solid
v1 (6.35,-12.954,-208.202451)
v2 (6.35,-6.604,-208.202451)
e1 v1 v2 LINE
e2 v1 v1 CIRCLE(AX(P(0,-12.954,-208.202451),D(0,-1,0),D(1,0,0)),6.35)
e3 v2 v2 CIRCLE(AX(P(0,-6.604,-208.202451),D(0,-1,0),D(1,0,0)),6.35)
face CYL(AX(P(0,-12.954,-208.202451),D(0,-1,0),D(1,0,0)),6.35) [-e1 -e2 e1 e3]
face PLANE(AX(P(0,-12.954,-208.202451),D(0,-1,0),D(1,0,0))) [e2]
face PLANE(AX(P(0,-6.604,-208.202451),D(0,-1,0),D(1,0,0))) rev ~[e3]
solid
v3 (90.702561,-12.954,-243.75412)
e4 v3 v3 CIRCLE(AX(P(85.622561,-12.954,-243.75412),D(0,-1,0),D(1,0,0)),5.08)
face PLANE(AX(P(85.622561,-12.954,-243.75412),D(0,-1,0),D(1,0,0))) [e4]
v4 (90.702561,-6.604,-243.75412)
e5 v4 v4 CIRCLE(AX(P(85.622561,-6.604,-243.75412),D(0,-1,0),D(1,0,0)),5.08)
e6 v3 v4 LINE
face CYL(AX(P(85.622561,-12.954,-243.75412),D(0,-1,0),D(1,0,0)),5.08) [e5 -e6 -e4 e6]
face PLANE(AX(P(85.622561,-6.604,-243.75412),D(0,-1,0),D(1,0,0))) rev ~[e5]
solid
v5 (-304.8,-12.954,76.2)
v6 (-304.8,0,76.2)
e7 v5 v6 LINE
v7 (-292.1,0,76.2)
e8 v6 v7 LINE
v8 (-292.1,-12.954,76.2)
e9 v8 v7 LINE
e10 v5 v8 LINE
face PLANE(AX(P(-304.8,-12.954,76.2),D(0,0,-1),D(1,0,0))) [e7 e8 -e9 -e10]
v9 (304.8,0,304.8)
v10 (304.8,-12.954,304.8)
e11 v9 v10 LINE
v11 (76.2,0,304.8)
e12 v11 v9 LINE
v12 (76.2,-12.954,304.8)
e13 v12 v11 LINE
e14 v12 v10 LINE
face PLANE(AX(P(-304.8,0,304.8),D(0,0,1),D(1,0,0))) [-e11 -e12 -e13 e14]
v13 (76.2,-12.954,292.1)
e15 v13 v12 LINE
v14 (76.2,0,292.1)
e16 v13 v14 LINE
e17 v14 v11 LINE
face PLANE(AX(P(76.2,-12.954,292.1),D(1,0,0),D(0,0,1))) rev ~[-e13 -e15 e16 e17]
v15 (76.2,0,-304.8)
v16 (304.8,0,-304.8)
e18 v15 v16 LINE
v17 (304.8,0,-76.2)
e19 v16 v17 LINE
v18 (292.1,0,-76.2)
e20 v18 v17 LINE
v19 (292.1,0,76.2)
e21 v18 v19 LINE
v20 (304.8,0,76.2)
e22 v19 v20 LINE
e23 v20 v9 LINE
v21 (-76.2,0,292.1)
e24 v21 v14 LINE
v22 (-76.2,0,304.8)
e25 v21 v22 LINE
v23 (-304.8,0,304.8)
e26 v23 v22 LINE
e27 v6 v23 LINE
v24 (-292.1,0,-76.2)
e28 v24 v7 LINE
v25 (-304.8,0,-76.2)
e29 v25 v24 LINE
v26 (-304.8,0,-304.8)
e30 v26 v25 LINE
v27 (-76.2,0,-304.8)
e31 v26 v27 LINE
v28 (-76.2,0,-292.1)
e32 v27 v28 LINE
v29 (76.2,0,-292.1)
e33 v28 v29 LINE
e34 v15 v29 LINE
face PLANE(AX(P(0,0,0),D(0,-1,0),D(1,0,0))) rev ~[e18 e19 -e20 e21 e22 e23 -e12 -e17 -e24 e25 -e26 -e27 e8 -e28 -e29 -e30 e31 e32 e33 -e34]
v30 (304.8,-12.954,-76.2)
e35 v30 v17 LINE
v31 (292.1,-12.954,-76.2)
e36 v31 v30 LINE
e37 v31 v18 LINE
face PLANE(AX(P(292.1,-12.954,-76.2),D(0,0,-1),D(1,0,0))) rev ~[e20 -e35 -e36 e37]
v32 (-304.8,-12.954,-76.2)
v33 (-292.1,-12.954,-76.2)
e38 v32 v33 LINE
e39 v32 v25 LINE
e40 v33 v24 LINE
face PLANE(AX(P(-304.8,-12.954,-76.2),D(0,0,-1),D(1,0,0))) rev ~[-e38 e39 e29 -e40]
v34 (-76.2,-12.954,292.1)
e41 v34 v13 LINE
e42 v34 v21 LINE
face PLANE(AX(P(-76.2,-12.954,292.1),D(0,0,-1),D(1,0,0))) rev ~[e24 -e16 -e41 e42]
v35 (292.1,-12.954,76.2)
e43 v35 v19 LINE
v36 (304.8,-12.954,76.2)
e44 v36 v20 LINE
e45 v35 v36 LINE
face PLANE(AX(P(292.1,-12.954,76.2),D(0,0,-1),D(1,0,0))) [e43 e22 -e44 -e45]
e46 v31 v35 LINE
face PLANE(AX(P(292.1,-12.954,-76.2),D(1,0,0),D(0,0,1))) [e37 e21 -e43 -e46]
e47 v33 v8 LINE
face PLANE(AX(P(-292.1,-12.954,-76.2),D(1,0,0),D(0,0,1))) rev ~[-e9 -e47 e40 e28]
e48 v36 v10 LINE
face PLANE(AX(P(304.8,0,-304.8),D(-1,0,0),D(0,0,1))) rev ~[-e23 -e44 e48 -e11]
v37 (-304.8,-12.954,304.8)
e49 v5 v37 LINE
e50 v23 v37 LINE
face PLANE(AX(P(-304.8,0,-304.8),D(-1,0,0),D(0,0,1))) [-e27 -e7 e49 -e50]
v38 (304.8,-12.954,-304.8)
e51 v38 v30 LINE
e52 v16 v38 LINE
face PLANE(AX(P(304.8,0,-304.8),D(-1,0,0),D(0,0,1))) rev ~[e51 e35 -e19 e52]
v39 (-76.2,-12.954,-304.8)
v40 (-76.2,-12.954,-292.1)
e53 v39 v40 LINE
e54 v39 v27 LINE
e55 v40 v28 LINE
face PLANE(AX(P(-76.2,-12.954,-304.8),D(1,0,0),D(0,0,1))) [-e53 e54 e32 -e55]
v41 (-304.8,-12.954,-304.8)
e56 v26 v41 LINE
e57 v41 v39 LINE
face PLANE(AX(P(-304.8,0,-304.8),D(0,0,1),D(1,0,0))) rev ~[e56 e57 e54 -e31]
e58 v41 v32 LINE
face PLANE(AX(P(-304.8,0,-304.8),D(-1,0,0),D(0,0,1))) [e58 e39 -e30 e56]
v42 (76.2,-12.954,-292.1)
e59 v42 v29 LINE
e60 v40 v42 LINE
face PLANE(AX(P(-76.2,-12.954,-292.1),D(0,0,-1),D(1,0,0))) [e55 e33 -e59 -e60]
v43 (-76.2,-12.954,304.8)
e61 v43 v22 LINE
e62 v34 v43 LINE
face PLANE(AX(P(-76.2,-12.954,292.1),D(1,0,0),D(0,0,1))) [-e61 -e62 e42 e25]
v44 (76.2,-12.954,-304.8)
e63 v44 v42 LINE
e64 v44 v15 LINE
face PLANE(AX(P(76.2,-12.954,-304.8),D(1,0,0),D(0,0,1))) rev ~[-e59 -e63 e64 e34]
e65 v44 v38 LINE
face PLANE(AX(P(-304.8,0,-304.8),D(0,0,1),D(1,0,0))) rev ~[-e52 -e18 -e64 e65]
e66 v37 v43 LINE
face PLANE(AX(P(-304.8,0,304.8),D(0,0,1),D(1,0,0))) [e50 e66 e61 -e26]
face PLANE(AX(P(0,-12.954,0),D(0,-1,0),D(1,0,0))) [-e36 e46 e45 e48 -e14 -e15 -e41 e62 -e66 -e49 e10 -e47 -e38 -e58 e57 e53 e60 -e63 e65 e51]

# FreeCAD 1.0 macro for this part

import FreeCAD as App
import Part
import Sketcher

V = App.Vector
Q = App.Units.Quantity

doc = App.newDocument("Part")
body = doc.addObject("PartDesign::Body", "Body")

sketch1 = doc.addObject("Sketcher::SketchObject", "Sketch")
body.addObject(sketch1)
sketch1.AttachmentSupport = (doc.XZ_Plane, [""])
sketch1.MapMode = "FlatFace"
sketch1.addGeometry([
    Part.LineSegment(V(-305, 305, 0), V(-305, -305, 0)),
    Part.LineSegment(V(-305, -305, 0), V(305, -305, 0)),
    Part.LineSegment(V(305, -305, 0), V(305, 305, 0)),
    Part.LineSegment(V(305, 305, 0), V(-305, 305, 0)),
], False)
sketch1.addConstraint([
    Sketcher.Constraint("Coincident", 0, 2, 1, 1),
    Sketcher.Constraint("Coincident", 1, 2, 2, 1),
    Sketcher.Constraint("Coincident", 2, 2, 3, 1),
    Sketcher.Constraint("Coincident", 3, 2, 0, 1),
    Sketcher.Constraint("Vertical", 0),
    Sketcher.Constraint("Horizontal", 1),
    Sketcher.Constraint("Vertical", 2),
    Sketcher.Constraint("Horizontal", 3),
    Sketcher.Constraint("Symmetric", 0, 2, 2, 2, -1, 1),
    Sketcher.Constraint("Equal", 3, 0),
    Sketcher.Constraint("DistanceX", 1, 1, 1, 2, Q("24 in")),
])
pad1 = doc.addObject("PartDesign::Pad", "Pad")
body.addObject(pad1)
pad1.Profile = sketch1
pad1.Length = Q("0.51 in")

sketch2 = doc.addObject("Sketcher::SketchObject", "Sketch001")
body.addObject(sketch2)
sketch2.AttachmentSupport = (doc.XZ_Plane, [""])
sketch2.MapMode = "FlatFace"
sketch2.AttachmentOffset = App.Placement(V(0, 0, 0.51 * 25.4), App.Rotation())
sketch2.addGeometry([
    Part.LineSegment(V(-76, -292, 0), V(-76, -305, 0)),
    Part.LineSegment(V(-76, -305, 0), V(76, -305, 0)),
    Part.LineSegment(V(76, -305, 0), V(76, -292, 0)),
    Part.LineSegment(V(76, -292, 0), V(-76, -292, 0)),
    Part.LineSegment(V(292, 76, 0), V(292, -76, 0)),
    Part.LineSegment(V(292, -76, 0), V(305, -76, 0)),
    Part.LineSegment(V(305, -76, 0), V(305, 76, 0)),
    Part.LineSegment(V(305, 76, 0), V(292, 76, 0)),
    Part.LineSegment(V(-76, 305, 0), V(-76, 292, 0)),
    Part.LineSegment(V(-76, 292, 0), V(76, 292, 0)),
    Part.LineSegment(V(76, 292, 0), V(76, 305, 0)),
    Part.LineSegment(V(76, 305, 0), V(-76, 305, 0)),
    Part.LineSegment(V(-305, 76, 0), V(-305, -76, 0)),
    Part.LineSegment(V(-305, -76, 0), V(-292, -76, 0)),
    Part.LineSegment(V(-292, -76, 0), V(-292, 76, 0)),
    Part.LineSegment(V(-292, 76, 0), V(-305, 76, 0)),
], False)
sketch2.addConstraint([
    Sketcher.Constraint("Coincident", 0, 2, 1, 1),
    Sketcher.Constraint("Coincident", 1, 2, 2, 1),
    Sketcher.Constraint("Coincident", 2, 2, 3, 1),
    Sketcher.Constraint("Coincident", 3, 2, 0, 1),
    Sketcher.Constraint("Coincident", 4, 2, 5, 1),
    Sketcher.Constraint("Coincident", 5, 2, 6, 1),
    Sketcher.Constraint("Coincident", 6, 2, 7, 1),
    Sketcher.Constraint("Coincident", 7, 2, 4, 1),
    Sketcher.Constraint("Coincident", 8, 2, 9, 1),
    Sketcher.Constraint("Coincident", 9, 2, 10, 1),
    Sketcher.Constraint("Coincident", 10, 2, 11, 1),
    Sketcher.Constraint("Coincident", 11, 2, 8, 1),
    Sketcher.Constraint("Coincident", 12, 2, 13, 1),
    Sketcher.Constraint("Coincident", 13, 2, 14, 1),
    Sketcher.Constraint("Coincident", 14, 2, 15, 1),
    Sketcher.Constraint("Coincident", 15, 2, 12, 1),
    Sketcher.Constraint("Vertical", 0),
    Sketcher.Constraint("Horizontal", 1),
    Sketcher.Constraint("Vertical", 2),
    Sketcher.Constraint("Horizontal", 3),
    Sketcher.Constraint("Vertical", 4),
    Sketcher.Constraint("Horizontal", 5),
    Sketcher.Constraint("Vertical", 6),
    Sketcher.Constraint("Horizontal", 7),
    Sketcher.Constraint("Vertical", 8),
    Sketcher.Constraint("Horizontal", 9),
    Sketcher.Constraint("Vertical", 10),
    Sketcher.Constraint("Horizontal", 11),
    Sketcher.Constraint("Vertical", 12),
    Sketcher.Constraint("Horizontal", 13),
    Sketcher.Constraint("Vertical", 14),
    Sketcher.Constraint("Horizontal", 15),
    Sketcher.Constraint("Symmetric", 2, 2, 8, 2, -1, 1),
    Sketcher.Constraint("Symmetric", 0, 2, 10, 2, -1, 1),
    Sketcher.Constraint("Symmetric", 6, 2, 12, 2, -1, 1),
    Sketcher.Constraint("Symmetric", 4, 2, 14, 2, -1, 1),
    Sketcher.Constraint("Horizontal", 5, 2, 12, 2),
    Sketcher.Constraint("Vertical", 3, 2, 8, 2),
    Sketcher.Constraint("Equal", 15, 0),
    Sketcher.Constraint("Equal", 11, 4),
    Sketcher.Constraint("DistanceX", 1, 1, 1, 2, Q("6 in")),
    Sketcher.Constraint("DistanceX", 5, 1, 5, 2, Q("0.5 in")),
    Sketcher.Constraint("DistanceY", 0, 2, -1, 1, Q("12 in")),
    Sketcher.Constraint("DistanceX", -1, 1, 5, 2, Q("12 in")),
])
pocket1 = doc.addObject("PartDesign::Pocket", "Pocket")
body.addObject(pocket1)
pocket1.Profile = sketch2
pocket1.Length = Q("0.51 in")
body2 = doc.addObject("PartDesign::Body", "Body001")
body2.AllowCompound = True

sketch3 = doc.addObject("Sketcher::SketchObject", "Sketch002")
body2.addObject(sketch3)
sketch3.AttachmentSupport = (doc.getObject("XZ_Plane001"), [""])
sketch3.MapMode = "FlatFace"
sketch3.AttachmentOffset = App.Placement(V(0, 0, 0.51 * 25.4), App.Rotation())
sketch3.addGeometry([
    Part.Circle(V(0, -208, 0), V(0, 0, 1), 6),
    Part.Circle(V(86, -244, 0), V(0, 0, 1), 5),
], False)
sketch3.addConstraint([
    Sketcher.Constraint("PointOnObject", 0, 3, -2),
    Sketcher.Constraint("Diameter", 0, Q("0.5 in")),
    Sketcher.Constraint("Diameter", 1, Q("0.4 in")),
    Sketcher.Constraint("DistanceY", 0, 3, -1, 1, Q("208.202451 mm")),
    Sketcher.Constraint("DistanceX", -1, 1, 1, 3, Q("85.622561 mm")),
    Sketcher.Constraint("DistanceY", 1, 3, -1, 1, Q("243.75412 mm")),
])
pad2 = doc.addObject("PartDesign::Pad", "Pad001")
body2.addObject(pad2)
pad2.Profile = sketch3
pad2.Length = Q("0.25 in")
pad2.Reversed = True

doc.recompute()
